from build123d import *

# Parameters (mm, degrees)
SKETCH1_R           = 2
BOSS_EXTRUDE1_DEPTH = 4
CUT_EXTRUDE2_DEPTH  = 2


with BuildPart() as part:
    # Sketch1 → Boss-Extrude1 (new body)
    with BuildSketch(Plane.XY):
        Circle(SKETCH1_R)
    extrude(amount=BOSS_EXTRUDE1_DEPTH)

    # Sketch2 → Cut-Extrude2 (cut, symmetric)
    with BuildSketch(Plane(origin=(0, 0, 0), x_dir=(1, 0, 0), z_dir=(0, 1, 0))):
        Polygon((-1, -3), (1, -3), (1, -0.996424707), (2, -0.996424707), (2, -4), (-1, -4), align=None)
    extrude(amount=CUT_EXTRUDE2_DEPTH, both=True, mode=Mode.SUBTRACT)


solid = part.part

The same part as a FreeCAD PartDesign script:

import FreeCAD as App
import Part
import Sketcher

doc = App.newDocument("Part")
body = doc.addObject("PartDesign::Body", "Body")

sketch1 = body.newObject("Sketcher::SketchObject", "Sketch")
sketch1.AttachmentSupport = (doc.getObject("XY_Plane"), [""])
sketch1.MapMode = "FlatFace"
sketch1.addGeometry(Part.Circle(App.Vector(0, 0, 0), App.Vector(0, 0, 1), 2), False)
sketch1.addConstraint([
    Sketcher.Constraint("Coincident", 0, 3, -1, 1),
    Sketcher.Constraint("Diameter", 0, 4.0),
])
pad1 = body.newObject("PartDesign::Pad", "Pad")
pad1.Profile = sketch1
pad1.Length = 4

sketch2 = body.newObject("Sketcher::SketchObject", "Sketch001")
sketch2.AttachmentSupport = (doc.getObject("XZ_Plane"), [""])
sketch2.MapMode = "FlatFace"
sketch2.addGeometry([
    Part.LineSegment(App.Vector(1, 3, 0), App.Vector(-1, 3, 0)),
    Part.LineSegment(App.Vector(-1, 3, 0), App.Vector(-1, 4, 0)),
    Part.LineSegment(App.Vector(-1, 4, 0), App.Vector(2, 4, 0)),
    Part.LineSegment(App.Vector(2, 4, 0), App.Vector(2, 1, 0)),
    Part.LineSegment(App.Vector(2, 1, 0), App.Vector(1, 1, 0)),
    Part.LineSegment(App.Vector(1, 1, 0), App.Vector(1, 3, 0)),
], False)
sketch2.addConstraint([
    Sketcher.Constraint("Coincident", 0, 2, 1, 1),
    Sketcher.Constraint("Coincident", 1, 2, 2, 1),
    Sketcher.Constraint("Coincident", 2, 2, 3, 1),
    Sketcher.Constraint("Coincident", 3, 2, 4, 1),
    Sketcher.Constraint("Coincident", 4, 2, 5, 1),
    Sketcher.Constraint("Coincident", 5, 2, 0, 1),
    Sketcher.Constraint("Horizontal", 0),
    Sketcher.Constraint("Vertical", 1),
    Sketcher.Constraint("Horizontal", 2),
    Sketcher.Constraint("Vertical", 3),
    Sketcher.Constraint("Horizontal", 4),
    Sketcher.Constraint("Vertical", 5),
    Sketcher.Constraint("Equal", 4, 1),
    Sketcher.Constraint("DistanceX", 0, 2, 0, 1, 2.0),
    Sketcher.Constraint("DistanceX", 2, 1, 2, 2, 3.0),
    Sketcher.Constraint("DistanceX", 0, 2, -1, 1, 1.0),
    Sketcher.Constraint("DistanceY", -1, 1, 0, 2, 3.0),
    Sketcher.Constraint("DistanceY", 3, 2, 3, 1, 3.003575),
])
pocket1 = body.newObject("PartDesign::Pocket", "Pocket")
pocket1.Profile = sketch2
pocket1.Length = 4
pocket1.Midplane = True

doc.recompute()
